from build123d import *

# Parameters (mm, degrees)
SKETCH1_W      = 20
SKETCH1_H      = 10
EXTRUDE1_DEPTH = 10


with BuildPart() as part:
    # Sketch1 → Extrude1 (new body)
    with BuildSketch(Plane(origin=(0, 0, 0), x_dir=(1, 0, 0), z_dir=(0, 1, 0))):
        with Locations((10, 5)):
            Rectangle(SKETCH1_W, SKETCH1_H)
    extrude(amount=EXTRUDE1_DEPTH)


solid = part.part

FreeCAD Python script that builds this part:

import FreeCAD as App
import Part
import Sketcher
from FreeCAD import Vector


def add_polygon(sketch, points):
    """Adds a closed chain of lines whose ends are joined by coincident constraints."""
    first, n = sketch.GeometryCount, len(points)
    for a, b in zip(points, points[1:] + points[:1]):
        sketch.addGeometry(Part.LineSegment(App.Vector(*a, 0), App.Vector(*b, 0)), False)
    for i in range(n):
        sketch.addConstraint(Sketcher.Constraint("Coincident", first + i, 2, first + (i + 1) % n, 1))

doc = App.newDocument("Part")
body = doc.addObject("PartDesign::Body", "Body")

# Sketch on XZ plane
sketch1 = doc.addObject("Sketcher::SketchObject", "Sketch")
body.addObject(sketch1)
sketch1.AttachmentSupport = (doc.XZ_Plane, [""])
sketch1.MapMode = "FlatFace"
add_polygon(sketch1, [(0, -10), (0, 0), (20, 0), (20, -10)])  # lines 0-3
sketch1.addConstraint([
    Sketcher.Constraint("Vertical", 0),
    Sketcher.Constraint("Horizontal", 1),
    Sketcher.Constraint("Vertical", 2),
    Sketcher.Constraint("Horizontal", 3),
    Sketcher.Constraint("Coincident", 0, 2, -1, 1),
    Sketcher.Constraint("DistanceX", 1, 1, 1, 2, 20.0),
    Sketcher.Constraint("DistanceY", 0, 1, 0, 2, 10.0),
])
pad1 = doc.addObject("PartDesign::Pad", "Pad")
body.addObject(pad1)
pad1.Profile = sketch1
pad1.Length = 10
pad1.Reversed = True

doc.recompute()
